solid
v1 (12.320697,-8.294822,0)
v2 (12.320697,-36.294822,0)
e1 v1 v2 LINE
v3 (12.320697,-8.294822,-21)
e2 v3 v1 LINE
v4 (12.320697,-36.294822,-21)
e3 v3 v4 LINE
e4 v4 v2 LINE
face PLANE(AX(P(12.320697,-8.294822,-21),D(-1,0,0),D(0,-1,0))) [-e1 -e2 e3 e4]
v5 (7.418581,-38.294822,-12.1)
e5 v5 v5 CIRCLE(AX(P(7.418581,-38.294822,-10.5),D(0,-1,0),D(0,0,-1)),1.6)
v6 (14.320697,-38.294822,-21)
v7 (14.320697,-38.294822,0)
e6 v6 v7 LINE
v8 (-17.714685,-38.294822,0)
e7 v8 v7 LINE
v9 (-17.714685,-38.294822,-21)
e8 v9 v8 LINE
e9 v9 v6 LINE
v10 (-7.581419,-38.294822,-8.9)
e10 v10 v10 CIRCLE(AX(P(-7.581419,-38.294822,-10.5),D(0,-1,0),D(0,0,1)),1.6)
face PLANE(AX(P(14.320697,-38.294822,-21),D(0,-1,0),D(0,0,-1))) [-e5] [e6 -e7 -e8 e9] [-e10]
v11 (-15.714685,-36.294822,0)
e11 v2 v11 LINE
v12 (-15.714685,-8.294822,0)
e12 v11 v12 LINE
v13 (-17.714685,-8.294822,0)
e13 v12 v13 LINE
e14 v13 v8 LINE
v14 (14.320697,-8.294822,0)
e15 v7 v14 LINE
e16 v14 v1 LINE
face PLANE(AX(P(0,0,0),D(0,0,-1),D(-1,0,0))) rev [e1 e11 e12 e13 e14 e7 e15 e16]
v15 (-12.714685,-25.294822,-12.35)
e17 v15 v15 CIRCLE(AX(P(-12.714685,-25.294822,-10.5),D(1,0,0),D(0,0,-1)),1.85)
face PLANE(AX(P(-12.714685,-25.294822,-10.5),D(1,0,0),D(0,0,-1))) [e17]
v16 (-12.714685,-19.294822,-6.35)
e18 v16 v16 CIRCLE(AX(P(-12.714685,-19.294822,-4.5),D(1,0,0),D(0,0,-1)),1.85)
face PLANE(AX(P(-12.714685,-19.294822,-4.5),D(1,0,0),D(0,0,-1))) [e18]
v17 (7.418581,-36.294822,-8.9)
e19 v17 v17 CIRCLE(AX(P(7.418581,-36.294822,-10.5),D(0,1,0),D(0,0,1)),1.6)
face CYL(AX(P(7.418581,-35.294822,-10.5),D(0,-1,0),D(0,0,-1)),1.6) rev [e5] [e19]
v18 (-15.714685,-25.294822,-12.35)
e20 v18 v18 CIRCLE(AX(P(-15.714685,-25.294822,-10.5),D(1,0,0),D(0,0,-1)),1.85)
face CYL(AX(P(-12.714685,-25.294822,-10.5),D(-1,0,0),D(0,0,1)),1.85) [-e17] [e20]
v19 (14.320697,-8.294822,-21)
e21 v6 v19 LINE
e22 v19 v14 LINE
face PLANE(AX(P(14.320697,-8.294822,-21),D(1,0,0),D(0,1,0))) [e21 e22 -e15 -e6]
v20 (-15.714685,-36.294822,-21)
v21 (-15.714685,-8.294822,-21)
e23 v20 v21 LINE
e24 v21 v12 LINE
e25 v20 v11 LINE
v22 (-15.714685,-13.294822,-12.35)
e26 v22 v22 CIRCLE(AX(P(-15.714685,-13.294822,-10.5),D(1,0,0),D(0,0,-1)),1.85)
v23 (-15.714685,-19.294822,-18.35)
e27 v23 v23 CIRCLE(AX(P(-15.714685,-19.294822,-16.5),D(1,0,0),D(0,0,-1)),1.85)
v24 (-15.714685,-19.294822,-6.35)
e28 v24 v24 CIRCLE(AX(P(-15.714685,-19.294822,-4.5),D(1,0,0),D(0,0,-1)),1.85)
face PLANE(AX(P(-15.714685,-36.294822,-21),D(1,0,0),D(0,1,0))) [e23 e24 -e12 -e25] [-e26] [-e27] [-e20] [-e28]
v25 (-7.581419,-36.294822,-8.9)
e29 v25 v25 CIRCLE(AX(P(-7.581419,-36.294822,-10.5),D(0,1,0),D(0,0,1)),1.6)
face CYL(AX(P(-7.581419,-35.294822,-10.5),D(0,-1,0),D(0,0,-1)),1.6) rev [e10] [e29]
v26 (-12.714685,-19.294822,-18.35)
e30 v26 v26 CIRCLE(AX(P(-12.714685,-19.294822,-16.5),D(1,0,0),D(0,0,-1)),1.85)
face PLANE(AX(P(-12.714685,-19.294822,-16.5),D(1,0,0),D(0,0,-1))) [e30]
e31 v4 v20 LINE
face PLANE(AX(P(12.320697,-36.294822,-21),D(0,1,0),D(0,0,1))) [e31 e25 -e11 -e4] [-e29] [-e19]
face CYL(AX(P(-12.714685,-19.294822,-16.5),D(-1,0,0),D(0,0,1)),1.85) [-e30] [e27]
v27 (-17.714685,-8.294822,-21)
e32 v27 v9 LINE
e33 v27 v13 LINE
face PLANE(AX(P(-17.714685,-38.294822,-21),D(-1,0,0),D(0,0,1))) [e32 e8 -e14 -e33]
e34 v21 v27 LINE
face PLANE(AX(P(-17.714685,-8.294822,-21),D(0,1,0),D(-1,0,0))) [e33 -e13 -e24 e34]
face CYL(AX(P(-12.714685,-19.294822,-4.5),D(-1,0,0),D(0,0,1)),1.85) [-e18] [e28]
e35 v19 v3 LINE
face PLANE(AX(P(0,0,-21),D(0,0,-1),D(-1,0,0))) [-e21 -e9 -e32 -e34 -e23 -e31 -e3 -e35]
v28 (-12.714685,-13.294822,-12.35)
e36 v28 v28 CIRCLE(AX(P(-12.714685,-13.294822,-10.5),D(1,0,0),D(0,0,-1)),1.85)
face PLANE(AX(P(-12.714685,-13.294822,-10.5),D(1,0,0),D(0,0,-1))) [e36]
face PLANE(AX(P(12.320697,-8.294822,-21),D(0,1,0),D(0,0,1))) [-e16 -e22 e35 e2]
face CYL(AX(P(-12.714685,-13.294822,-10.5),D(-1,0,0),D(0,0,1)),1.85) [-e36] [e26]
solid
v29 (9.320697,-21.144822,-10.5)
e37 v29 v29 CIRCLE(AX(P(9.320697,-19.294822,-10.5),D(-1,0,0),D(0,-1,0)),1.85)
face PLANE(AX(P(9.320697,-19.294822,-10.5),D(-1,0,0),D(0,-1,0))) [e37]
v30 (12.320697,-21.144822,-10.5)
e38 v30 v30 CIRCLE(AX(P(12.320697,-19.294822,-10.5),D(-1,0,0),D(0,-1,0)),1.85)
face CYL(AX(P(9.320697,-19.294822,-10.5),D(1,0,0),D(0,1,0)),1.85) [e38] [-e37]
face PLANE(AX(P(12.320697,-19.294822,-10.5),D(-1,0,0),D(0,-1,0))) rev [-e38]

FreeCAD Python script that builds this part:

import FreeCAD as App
import Part
import Sketcher

V = App.Vector
Q = App.Units.Quantity


def add_polygon(sketch, points):
    """Adds a closed chain of lines whose ends are joined by coincident constraints."""
    first, n = sketch.GeometryCount, len(points)
    for a, b in zip(points, points[1:] + points[:1]):
        sketch.addGeometry(Part.LineSegment(App.Vector(*a, 0), App.Vector(*b, 0)), False)
    for i in range(n):
        sketch.addConstraint(Sketcher.Constraint("Coincident", first + i, 2, first + (i + 1) % n, 1))

doc = App.newDocument("Part")
body = doc.addObject("PartDesign::Body", "Body")

# Sketch on XY plane
sketch1 = body.newObject("Sketcher::SketchObject", "Sketch")
sketch1.AttachmentSupport = (doc.getObject("XY_Plane"), [""])
sketch1.MapMode = "FlatFace"
add_polygon(sketch1, [(14.3, -8.3), (12.3, -8.3), (12.3, -36.3), (-15.7, -36.3), (-15.7, -8.3), (-17.7, -8.3), (-17.7, -38.3), (14.3, -38.3)])  # lines 0-7
sketch1.addConstraint(Sketcher.Constraint("Horizontal", 0))
sketch1.addConstraint(Sketcher.Constraint("Vertical", 1))
sketch1.addConstraint(Sketcher.Constraint("Horizontal", 2))
sketch1.addConstraint(Sketcher.Constraint("Vertical", 3))
sketch1.addConstraint(Sketcher.Constraint("Horizontal", 4))
sketch1.addConstraint(Sketcher.Constraint("Vertical", 5))
sketch1.addConstraint(Sketcher.Constraint("Horizontal", 6))
sketch1.addConstraint(Sketcher.Constraint("Vertical", 7))
sketch1.addConstraint(Sketcher.Constraint("Horizontal", 0, 2, 3, 2))
sketch1.addConstraint(Sketcher.Constraint("Equal", 0, 4))
sketch1.addConstraint(Sketcher.Constraint("DistanceX", 0, 2, 0, 1, Q("2 mm")))
sketch1.addConstraint(Sketcher.Constraint("DistanceY", 1, 2, 1, 1, Q("28 mm")))
sketch1.addConstraint(Sketcher.Constraint("DistanceY", 5, 2, 5, 1, Q("30 mm")))
sketch1.addConstraint(Sketcher.Constraint("DistanceX", 2, 2, 2, 1, Q("28.035382 mm")))
sketch1.addConstraint(Sketcher.Constraint("DistanceY", 0, 2, -1, 1, Q("8.294822 mm")))
sketch1.addConstraint(Sketcher.Constraint("DistanceX", -1, 1, 0, 2, Q("12.320697 mm")))
pad1 = body.newObject("PartDesign::Pad", "Pad")
pad1.Profile = sketch1
pad1.Length = 21
pad1.Reversed = True

# Sketch on YZ plane
sketch2 = body.newObject("Sketcher::SketchObject", "Sketch001")
sketch2.AttachmentSupport = (doc.getObject("YZ_Plane"), [""])
sketch2.MapMode = "FlatFace"
sketch2.AttachmentOffset = App.Placement(V(0, 0, -15.714685), App.Rotation())
sketch2.addGeometry(Part.Circle(V(-25.3, -10.5, 0), V(0, 0, 1), 1.9), False)
sketch2.addGeometry(Part.Circle(V(-19.3, -16.5, 0), V(0, 0, 1), 1.9), False)
sketch2.addGeometry(Part.Circle(V(-19.3, -4.5, 0), V(0, 0, 1), 1.9), False)
sketch2.addGeometry(Part.Circle(V(-13.3, -10.5, 0), V(0, 0, 1), 1.9), False)
sketch2.addConstraint(Sketcher.Constraint("Equal", 0, 1))
sketch2.addConstraint(Sketcher.Constraint("Equal", 1, 2))
sketch2.addConstraint(Sketcher.Constraint("Equal", 2, 3))
sketch2.addConstraint(Sketcher.Constraint("Horizontal", 0, 3, 3, 3))
sketch2.addConstraint(Sketcher.Constraint("Vertical", 1, 3, 2, 3))
sketch2.addConstraint(Sketcher.Constraint("Diameter", 0, Q("3.7 mm")))
sketch2.addConstraint(Sketcher.Constraint("DistanceX", 0, 3, 1, 3, Q("6 mm")))
sketch2.addConstraint(Sketcher.Constraint("DistanceY", 1, 3, 0, 3, Q("6 mm")))
sketch2.addConstraint(Sketcher.Constraint("DistanceY", 0, 3, 2, 3, Q("6 mm")))
sketch2.addConstraint(Sketcher.Constraint("DistanceX", 1, 3, 3, 3, Q("6 mm")))
sketch2.addConstraint(Sketcher.Constraint("DistanceY", 0, 3, -1, 1, Q("10.5 mm")))
sketch2.addConstraint(Sketcher.Constraint("DistanceX", 0, 3, -1, 1, Q("25.294822 mm")))
pad2 = body.newObject("PartDesign::Pad", "Pad001")
pad2.Profile = sketch2
pad2.Length = 3

# Sketch on XZ plane
sketch3 = body.newObject("Sketcher::SketchObject", "Sketch002")
sketch3.AttachmentSupport = (doc.getObject("XZ_Plane"), [""])
sketch3.MapMode = "FlatFace"
sketch3.AttachmentOffset = App.Placement(V(0, 0, 38.294822), App.Rotation())
sketch3.addGeometry(Part.Circle(V(7.4, -10.5, 0), V(0, 0, 1), 1.6), False)
sketch3.addGeometry(Part.Circle(V(-7.6, -10.5, 0), V(0, 0, 1), 1.6), False)
sketch3.addConstraint(Sketcher.Constraint("Equal", 0, 1))
sketch3.addConstraint(Sketcher.Constraint("Horizontal", 0, 3, 1, 3))
sketch3.addConstraint(Sketcher.Constraint("Diameter", 0, Q("3.2 mm")))
sketch3.addConstraint(Sketcher.Constraint("DistanceX", 1, 3, 0, 3, Q("15 mm")))
sketch3.addConstraint(Sketcher.Constraint("DistanceY", 0, 3, -1, 1, Q("10.5 mm")))
sketch3.addConstraint(Sketcher.Constraint("DistanceX", -1, 1, 0, 3, Q("7.418581 mm")))
pocket1 = body.newObject("PartDesign::Pocket", "Pocket")
pocket1.Profile = sketch3
pocket1.Length = 3
body2 = doc.addObject("PartDesign::Body", "Body001")

# Sketch on YZ plane
sketch4 = body2.newObject("Sketcher::SketchObject", "Sketch003")
sketch4.AttachmentSupport = (doc.getObject("YZ_Plane001"), [""])
sketch4.MapMode = "FlatFace"
sketch4.AttachmentOffset = App.Placement(V(0, 0, 12.320697), App.Rotation())
sketch4.addGeometry(Part.Circle(V(-19.3, -10.5, 0), V(0, 0, 1), 1.9), False)
sketch4.addConstraint(Sketcher.Constraint("Diameter", 0, Q("3.7 mm")))
sketch4.addConstraint(Sketcher.Constraint("DistanceY", 0, 3, -1, 1, Q("10.5 mm")))
sketch4.addConstraint(Sketcher.Constraint("DistanceX", 0, 3, -1, 1, Q("19.294822 mm")))
pad3 = body2.newObject("PartDesign::Pad", "Pad002")
pad3.Profile = sketch4
pad3.Length = 3
pad3.Reversed = True

doc.recompute()
